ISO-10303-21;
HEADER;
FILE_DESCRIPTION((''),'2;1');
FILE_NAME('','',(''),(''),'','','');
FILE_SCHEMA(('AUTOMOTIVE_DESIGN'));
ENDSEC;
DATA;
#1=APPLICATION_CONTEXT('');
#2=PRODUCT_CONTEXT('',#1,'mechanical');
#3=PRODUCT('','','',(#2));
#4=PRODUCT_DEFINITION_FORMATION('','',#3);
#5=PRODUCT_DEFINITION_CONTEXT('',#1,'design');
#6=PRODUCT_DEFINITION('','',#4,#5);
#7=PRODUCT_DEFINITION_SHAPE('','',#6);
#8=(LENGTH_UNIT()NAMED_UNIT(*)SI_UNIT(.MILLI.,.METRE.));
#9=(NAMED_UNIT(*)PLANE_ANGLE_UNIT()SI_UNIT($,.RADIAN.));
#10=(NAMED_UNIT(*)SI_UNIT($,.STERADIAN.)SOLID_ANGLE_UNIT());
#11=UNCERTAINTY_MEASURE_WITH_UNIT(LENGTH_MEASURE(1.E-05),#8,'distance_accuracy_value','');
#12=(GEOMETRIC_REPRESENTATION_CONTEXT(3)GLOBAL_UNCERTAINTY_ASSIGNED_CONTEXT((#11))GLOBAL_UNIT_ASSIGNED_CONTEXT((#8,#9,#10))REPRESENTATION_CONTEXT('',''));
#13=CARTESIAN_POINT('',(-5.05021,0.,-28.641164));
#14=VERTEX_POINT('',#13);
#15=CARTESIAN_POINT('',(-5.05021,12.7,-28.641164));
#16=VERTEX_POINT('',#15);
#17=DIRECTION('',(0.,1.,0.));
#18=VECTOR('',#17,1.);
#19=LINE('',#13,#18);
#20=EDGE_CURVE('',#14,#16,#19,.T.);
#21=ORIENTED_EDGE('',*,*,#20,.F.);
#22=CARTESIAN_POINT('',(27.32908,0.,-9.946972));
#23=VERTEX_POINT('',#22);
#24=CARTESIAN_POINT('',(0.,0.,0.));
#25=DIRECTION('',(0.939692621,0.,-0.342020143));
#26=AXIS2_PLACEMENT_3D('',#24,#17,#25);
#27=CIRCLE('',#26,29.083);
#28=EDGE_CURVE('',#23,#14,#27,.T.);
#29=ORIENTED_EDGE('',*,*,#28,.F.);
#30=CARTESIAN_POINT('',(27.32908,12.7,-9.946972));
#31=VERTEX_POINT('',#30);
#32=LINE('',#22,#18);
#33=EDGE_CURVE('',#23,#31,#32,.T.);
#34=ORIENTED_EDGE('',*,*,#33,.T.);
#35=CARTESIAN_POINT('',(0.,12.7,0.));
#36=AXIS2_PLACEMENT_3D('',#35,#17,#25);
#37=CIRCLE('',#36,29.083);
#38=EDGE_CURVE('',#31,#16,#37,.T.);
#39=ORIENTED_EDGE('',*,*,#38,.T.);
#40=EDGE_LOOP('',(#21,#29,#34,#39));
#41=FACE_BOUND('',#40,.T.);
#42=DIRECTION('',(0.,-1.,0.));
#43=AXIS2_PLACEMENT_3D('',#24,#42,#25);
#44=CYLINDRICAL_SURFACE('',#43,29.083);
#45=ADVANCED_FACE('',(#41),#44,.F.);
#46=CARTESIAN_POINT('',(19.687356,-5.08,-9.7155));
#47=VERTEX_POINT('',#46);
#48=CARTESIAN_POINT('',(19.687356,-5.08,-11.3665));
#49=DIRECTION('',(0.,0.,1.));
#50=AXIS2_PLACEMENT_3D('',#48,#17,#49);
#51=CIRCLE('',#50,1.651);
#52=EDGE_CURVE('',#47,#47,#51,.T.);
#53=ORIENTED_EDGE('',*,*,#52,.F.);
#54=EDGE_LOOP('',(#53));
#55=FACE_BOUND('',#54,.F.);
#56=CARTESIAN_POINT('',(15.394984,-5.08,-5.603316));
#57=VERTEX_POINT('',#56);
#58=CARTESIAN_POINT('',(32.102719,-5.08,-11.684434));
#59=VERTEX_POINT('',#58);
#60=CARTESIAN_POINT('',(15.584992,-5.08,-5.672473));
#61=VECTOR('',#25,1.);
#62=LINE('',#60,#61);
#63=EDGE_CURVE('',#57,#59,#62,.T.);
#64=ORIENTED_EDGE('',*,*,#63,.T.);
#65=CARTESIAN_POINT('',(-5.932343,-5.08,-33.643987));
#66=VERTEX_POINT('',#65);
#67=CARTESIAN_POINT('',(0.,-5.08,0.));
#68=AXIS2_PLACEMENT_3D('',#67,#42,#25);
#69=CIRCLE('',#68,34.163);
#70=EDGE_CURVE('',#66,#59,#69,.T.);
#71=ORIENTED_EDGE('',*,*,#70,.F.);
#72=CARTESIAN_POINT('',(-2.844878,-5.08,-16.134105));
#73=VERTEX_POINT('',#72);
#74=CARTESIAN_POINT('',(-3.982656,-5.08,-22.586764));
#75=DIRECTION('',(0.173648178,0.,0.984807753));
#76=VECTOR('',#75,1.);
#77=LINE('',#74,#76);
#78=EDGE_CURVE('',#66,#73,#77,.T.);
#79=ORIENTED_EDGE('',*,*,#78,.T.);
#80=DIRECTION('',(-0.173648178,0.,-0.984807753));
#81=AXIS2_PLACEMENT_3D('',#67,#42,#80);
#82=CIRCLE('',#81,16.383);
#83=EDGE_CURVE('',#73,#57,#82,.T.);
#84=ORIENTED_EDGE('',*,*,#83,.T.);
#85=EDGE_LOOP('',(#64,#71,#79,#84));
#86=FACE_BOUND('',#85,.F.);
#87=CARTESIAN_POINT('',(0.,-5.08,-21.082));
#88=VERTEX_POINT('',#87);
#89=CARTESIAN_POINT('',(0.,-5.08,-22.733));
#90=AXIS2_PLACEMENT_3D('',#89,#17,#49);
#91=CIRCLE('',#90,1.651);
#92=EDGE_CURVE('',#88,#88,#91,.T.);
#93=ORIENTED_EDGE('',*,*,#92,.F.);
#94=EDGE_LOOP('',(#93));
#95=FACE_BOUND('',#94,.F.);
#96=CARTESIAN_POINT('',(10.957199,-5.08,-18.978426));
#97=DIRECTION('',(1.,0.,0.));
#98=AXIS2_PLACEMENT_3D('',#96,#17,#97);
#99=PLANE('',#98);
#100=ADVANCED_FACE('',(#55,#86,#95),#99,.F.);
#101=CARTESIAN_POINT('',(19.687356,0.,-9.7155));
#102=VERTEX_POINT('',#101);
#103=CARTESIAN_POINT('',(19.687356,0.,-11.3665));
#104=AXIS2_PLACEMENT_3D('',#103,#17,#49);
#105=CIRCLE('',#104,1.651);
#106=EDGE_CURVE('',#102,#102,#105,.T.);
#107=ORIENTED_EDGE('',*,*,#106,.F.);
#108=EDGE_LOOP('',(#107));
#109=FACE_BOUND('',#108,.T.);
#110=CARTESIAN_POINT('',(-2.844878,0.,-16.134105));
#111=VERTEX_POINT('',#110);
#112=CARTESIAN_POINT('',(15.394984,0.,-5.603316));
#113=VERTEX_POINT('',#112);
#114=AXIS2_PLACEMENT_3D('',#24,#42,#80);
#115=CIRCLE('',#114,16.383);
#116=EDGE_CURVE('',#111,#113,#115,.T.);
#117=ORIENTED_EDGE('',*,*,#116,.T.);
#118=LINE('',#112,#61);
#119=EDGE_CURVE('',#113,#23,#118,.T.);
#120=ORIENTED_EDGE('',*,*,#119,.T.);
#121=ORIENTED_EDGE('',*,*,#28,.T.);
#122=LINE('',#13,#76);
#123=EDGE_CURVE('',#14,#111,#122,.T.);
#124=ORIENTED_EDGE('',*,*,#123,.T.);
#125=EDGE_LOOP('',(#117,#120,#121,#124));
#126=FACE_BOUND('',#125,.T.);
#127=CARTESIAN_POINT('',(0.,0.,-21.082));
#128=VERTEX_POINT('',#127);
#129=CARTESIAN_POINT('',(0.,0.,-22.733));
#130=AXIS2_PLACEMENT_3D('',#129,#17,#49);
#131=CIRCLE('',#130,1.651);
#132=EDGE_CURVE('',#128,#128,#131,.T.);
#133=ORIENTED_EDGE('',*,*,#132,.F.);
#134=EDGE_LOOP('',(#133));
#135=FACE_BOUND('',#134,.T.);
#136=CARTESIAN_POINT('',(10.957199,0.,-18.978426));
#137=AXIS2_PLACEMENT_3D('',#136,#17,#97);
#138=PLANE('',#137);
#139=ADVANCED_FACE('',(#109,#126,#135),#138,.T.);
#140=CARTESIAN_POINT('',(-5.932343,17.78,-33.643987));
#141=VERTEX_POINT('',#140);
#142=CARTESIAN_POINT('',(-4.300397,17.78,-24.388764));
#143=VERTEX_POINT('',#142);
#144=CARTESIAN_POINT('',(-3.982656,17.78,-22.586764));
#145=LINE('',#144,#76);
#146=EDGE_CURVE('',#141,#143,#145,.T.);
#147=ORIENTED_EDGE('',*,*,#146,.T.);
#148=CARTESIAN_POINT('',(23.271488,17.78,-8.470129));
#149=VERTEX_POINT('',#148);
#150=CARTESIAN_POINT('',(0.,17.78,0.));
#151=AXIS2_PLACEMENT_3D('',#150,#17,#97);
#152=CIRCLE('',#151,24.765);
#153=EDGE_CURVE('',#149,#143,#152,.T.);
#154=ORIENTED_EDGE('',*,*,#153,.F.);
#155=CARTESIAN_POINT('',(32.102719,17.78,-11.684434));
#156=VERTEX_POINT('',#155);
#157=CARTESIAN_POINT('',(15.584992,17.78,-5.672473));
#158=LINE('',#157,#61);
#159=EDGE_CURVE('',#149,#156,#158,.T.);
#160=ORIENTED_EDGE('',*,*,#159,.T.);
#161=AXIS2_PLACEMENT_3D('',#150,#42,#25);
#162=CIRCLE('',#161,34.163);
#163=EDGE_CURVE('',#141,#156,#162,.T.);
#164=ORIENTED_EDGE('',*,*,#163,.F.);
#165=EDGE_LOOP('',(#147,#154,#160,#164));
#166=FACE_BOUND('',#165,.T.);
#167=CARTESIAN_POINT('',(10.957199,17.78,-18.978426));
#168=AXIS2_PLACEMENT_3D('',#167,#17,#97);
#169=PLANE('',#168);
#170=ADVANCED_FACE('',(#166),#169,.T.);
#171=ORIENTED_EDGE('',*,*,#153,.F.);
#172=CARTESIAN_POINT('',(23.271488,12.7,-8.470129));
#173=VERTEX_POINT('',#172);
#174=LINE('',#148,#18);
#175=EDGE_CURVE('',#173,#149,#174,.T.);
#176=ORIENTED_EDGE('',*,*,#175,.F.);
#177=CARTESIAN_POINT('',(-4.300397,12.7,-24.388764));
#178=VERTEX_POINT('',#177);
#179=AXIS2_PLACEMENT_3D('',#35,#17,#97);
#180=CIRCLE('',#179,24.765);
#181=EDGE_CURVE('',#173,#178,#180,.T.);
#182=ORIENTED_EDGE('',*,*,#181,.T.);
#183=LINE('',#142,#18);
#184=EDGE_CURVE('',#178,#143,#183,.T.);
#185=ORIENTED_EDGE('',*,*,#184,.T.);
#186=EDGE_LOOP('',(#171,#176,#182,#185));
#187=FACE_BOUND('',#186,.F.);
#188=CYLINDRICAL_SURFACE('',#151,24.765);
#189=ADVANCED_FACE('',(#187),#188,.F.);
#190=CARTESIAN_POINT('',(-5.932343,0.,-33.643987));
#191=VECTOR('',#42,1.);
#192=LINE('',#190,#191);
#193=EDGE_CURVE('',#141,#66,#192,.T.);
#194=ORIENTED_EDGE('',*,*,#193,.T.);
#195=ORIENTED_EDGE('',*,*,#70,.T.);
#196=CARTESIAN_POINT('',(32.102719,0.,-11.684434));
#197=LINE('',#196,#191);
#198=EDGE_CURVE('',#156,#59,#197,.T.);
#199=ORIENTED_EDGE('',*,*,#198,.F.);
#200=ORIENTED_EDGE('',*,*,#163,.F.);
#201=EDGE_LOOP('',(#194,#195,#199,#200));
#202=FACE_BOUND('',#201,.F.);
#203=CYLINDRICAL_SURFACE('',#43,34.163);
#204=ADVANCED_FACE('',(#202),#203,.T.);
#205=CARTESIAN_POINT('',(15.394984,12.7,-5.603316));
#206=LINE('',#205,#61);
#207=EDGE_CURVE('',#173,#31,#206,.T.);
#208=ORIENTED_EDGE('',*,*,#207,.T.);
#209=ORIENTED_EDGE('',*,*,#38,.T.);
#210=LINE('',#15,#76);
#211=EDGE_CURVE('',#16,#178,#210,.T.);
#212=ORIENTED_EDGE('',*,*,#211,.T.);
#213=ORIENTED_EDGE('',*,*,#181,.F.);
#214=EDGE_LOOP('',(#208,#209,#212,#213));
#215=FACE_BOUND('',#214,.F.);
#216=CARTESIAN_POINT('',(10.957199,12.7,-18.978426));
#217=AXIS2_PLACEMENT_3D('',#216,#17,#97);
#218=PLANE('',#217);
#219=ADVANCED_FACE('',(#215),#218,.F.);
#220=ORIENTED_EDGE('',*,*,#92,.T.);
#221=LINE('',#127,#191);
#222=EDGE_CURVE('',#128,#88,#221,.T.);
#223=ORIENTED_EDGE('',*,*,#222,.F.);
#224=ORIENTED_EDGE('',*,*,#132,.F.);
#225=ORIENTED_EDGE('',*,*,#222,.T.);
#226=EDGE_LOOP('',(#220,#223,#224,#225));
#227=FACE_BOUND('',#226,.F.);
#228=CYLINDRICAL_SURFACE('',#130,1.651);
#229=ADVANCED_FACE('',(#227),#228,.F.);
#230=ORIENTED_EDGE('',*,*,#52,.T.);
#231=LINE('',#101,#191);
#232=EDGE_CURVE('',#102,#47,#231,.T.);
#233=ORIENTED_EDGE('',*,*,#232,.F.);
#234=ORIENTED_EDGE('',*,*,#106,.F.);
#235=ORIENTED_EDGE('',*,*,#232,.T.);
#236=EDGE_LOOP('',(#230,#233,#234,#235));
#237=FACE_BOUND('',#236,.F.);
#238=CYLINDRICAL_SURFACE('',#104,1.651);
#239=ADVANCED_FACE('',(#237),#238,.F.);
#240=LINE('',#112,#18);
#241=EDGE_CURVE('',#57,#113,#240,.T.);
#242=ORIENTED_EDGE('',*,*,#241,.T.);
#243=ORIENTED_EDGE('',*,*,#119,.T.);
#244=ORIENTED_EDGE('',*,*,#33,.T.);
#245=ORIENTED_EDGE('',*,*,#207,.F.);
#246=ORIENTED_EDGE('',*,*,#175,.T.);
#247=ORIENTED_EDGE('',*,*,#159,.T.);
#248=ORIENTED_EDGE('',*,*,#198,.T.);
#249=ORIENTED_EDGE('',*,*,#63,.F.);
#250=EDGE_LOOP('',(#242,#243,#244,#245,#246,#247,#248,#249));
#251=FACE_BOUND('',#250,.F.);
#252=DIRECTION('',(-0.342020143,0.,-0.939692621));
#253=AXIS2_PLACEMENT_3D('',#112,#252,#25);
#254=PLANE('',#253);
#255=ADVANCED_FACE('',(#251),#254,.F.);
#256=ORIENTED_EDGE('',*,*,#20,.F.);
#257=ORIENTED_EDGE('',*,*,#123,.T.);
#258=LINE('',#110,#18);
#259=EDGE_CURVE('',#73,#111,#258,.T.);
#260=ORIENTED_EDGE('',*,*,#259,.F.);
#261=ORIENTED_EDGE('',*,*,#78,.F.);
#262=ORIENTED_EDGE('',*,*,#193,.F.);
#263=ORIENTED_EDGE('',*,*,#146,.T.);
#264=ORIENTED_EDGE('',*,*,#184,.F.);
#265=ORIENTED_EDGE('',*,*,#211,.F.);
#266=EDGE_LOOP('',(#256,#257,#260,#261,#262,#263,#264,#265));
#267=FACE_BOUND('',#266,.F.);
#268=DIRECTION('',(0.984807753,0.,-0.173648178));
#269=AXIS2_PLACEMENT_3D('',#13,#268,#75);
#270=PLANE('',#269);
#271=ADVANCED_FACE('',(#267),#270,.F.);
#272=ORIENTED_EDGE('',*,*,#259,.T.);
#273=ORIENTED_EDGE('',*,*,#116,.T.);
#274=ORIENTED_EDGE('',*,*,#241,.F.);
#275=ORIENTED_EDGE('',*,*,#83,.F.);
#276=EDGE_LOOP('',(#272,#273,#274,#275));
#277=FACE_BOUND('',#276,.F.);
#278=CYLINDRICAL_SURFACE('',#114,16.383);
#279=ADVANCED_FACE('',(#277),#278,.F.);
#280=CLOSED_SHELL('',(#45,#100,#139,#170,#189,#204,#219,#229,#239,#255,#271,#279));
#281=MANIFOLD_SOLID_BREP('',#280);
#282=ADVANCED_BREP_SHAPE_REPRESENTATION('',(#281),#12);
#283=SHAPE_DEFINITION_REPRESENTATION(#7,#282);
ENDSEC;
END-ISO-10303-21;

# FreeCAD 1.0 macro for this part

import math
import FreeCAD as App
import Part
import Sketcher
from FreeCAD import Vector
Q = App.Units.Quantity


def faces_at(feature, points):
    """Names of the faces that lie closest to the given points."""
    faces = feature.Shape.Faces
    near = lambda p: min(range(len(faces)), key=lambda i: faces[i].distToShape(Part.Vertex(*p))[0])
    return sorted({f"Face{near(p) + 1}" for p in points})

doc = App.newDocument("Part")
body = doc.addObject("PartDesign::Body", "Body")

# Sketch on XZ plane
sketch1 = doc.addObject("Sketcher::SketchObject", "Sketch")
body.addObject(sketch1)
sketch1.AttachmentSupport = (doc.XZ_Plane, [""])
sketch1.MapMode = "FlatFace"
sketch1.addGeometry(Part.ArcOfCircle(Part.Circle(Vector(0, 0, 0), Vector(0, 0, 1), 16), math.radians(-100), math.radians(-20)), False)
sketch1.addGeometry(Part.LineSegment(Vector(15, -6, 0), Vector(27, -10, 0)), False)
sketch1.addGeometry(Part.ArcOfCircle(Part.Circle(Vector(0, 0, 0), Vector(0, 0, 1), 29), math.radians(-100), math.radians(-20)), False)
sketch1.addGeometry(Part.LineSegment(Vector(-5, -29, 0), Vector(-3, -16, 0)), False)
sketch1.addConstraint(Sketcher.Constraint("Coincident", 0, 2, 1, 1))
sketch1.addConstraint(Sketcher.Constraint("Coincident", 1, 2, 2, 2))
sketch1.addConstraint(Sketcher.Constraint("Coincident", 2, 1, 3, 1))
sketch1.addConstraint(Sketcher.Constraint("Coincident", 3, 2, 0, 1))
sketch1.addConstraint(Sketcher.Constraint("Coincident", 0, 3, -1, 1))
sketch1.addConstraint(Sketcher.Constraint("Coincident", 2, 3, -1, 1))
sketch1.addConstraint(Sketcher.Constraint("Angle", 1, Q("-20 deg")))
sketch1.addConstraint(Sketcher.Constraint("Angle", 3, Q("80 deg")))
sketch1.addConstraint(Sketcher.Constraint("Radius", 0, Q("0.645 in")))
sketch1.addConstraint(Sketcher.Constraint("Radius", 2, Q("1.145 in")))
sketch1.addConstraint(Sketcher.Constraint("DistanceX", -1, 1, 1, 2, 27.32908))
sketch1.addConstraint(Sketcher.Constraint("DistanceX", 2, 1, -1, 1, 5.05021))
pad1 = doc.addObject("PartDesign::Pad", "Pad")
body.addObject(pad1)
pad1.Profile = sketch1
pad1.Length = Q("0.5 in")
pad1.Reversed = True
doc.recompute()

thickness = doc.addObject("PartDesign::Thickness", "Thickness")
body.addObject(thickness)
thickness.Base = (pad1, faces_at(pad1, [(21.362, 6.35, -7.775), (8.191, 6.35, -14.188), (-3.948, 6.35, -22.388)]))
thickness.Value = Q("0.2 in")
thickness.Reversed = False
thickness.Join = "Intersection"

# Sketch on XZ plane
sketch2 = doc.addObject("Sketcher::SketchObject", "Sketch001")
body.addObject(sketch2)
sketch2.AttachmentSupport = (doc.XZ_Plane, [""])
sketch2.MapMode = "FlatFace"
sketch2.addGeometry(Part.Circle(Vector(0, -22.7, 0), Vector(0, 0, 1), 1.7), False)
sketch2.addGeometry(Part.Circle(Vector(19.7, -11.4, 0), Vector(0, 0, 1), 1.7), False)
sketch2.addConstraint(Sketcher.Constraint("Equal", 0, 1))
sketch2.addConstraint(Sketcher.Constraint("PointOnObject", 0, 3, -2))
sketch2.addConstraint(Sketcher.Constraint("Diameter", 0, Q("0.13 in")))
sketch2.addConstraint(Sketcher.Constraint("DistanceY", 0, 3, -1, 1, Q("0.895 in")))
sketch2.addConstraint(Sketcher.Constraint("DistanceY", 1, 3, -1, 1, Q("0.4475 in")))
sketch2.addConstraint(Sketcher.Constraint("DistanceX", -1, 1, 1, 3, 19.687356))
pocket1 = doc.addObject("PartDesign::Pocket", "Pocket")
body.addObject(pocket1)
pocket1.Profile = sketch2
pocket1.Length = Q("0.48 in")
pocket1.Reversed = True

# Sketch on XZ plane
sketch3 = doc.addObject("Sketcher::SketchObject", "Sketch002")
body.addObject(sketch3)
sketch3.AttachmentSupport = (doc.XZ_Plane, [""])
sketch3.MapMode = "FlatFace"
sketch3.AttachmentOffset = App.Placement(Vector(0, 0, -0.7 * 25.4), App.Rotation())
sketch3.addGeometry(Part.Circle(Vector(0, 0, 0), Vector(0, 0, 1), 25), False)
sketch3.addConstraint(Sketcher.Constraint("Coincident", 0, 3, -1, 1))
sketch3.addConstraint(Sketcher.Constraint("Diameter", 0, Q("1.95 in")))
pocket2 = doc.addObject("PartDesign::Pocket", "Pocket001")
body.addObject(pocket2)
pocket2.Profile = sketch3
pocket2.Length = Q("0.2 in")
pocket2.Reversed = True

doc.recompute()
